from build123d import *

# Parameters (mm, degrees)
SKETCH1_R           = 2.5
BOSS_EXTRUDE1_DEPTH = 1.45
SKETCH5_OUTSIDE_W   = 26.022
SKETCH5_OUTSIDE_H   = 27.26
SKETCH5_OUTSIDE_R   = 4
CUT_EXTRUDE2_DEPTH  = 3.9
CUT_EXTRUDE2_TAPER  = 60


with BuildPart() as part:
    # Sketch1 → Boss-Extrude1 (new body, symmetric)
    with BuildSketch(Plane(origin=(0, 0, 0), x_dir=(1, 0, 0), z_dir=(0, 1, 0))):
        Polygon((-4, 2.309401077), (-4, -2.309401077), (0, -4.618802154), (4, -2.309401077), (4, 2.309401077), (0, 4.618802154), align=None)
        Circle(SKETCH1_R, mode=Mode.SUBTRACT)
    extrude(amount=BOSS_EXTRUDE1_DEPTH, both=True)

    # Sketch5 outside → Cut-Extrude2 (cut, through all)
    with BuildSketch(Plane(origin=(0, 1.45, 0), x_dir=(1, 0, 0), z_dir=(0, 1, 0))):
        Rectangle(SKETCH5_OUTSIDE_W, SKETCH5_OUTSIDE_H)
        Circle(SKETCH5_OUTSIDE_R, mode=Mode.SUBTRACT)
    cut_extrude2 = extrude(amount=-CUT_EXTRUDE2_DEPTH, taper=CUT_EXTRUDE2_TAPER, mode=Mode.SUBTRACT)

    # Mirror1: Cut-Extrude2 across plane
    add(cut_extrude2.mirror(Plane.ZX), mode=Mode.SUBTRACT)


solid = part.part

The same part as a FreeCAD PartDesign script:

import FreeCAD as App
import Part
import Sketcher
Q = App.Units.Quantity


def add_polygon(sketch, points):
    """Adds a closed chain of lines whose ends are joined by coincident constraints."""
    first, n = sketch.GeometryCount, len(points)
    for a, b in zip(points, points[1:] + points[:1]):
        sketch.addGeometry(Part.LineSegment(App.Vector(*a, 0), App.Vector(*b, 0)), False)
    for i in range(n):
        sketch.addConstraint(Sketcher.Constraint("Coincident", first + i, 2, first + (i + 1) % n, 1))

doc = App.newDocument("Part")
body = doc.addObject("PartDesign::Body", "Body")

# Sketch on XZ plane
sketch1 = body.newObject("Sketcher::SketchObject", "Sketch")
sketch1.AttachmentSupport = (doc.getObject("XZ_Plane"), [""])
sketch1.MapMode = "FlatFace"
add_polygon(sketch1, [(-4, -2.3), (-4, 2.3), (0, 4.6), (4, 2.3), (4, -2.3), (0, -4.6)])  # lines 0-5
sketch1.addGeometry(Part.Circle(App.Vector(0, 0, 0), App.Vector(0, 0, 1), 2.5), False)  # 6
sketch1.addConstraint([
    Sketcher.Constraint("Vertical", 0),
    Sketcher.Constraint("Vertical", 3),
    Sketcher.Constraint("Coincident", 6, 3, -1, 1),
    Sketcher.Constraint("Symmetric", 0, 2, 3, 2, -1, 1),
    Sketcher.Constraint("Symmetric", 1, 2, 4, 2, -1, 1),
    Sketcher.Constraint("PointOnObject", 1, 2, -2),
    Sketcher.Constraint("Parallel", 2, 5),
    Sketcher.Constraint("Horizontal", 0, 2, 2, 2),
    Sketcher.Constraint("Diameter", 6, Q("5 mm")),
    Sketcher.Constraint("Angle", 1, Q("30 deg")),
    Sketcher.Constraint("DistanceX", 0, 2, -1, 1, Q("4 mm")),
    Sketcher.Constraint("DistanceY", -1, 1, 0, 2, Q("2.309401 mm")),
])
pad1 = body.newObject("PartDesign::Pad", "Pad")
pad1.Profile = sketch1
pad1.Length = 2.9
pad1.Midplane = True

# Sketch on XZ plane
sketch2 = body.newObject("Sketcher::SketchObject", "Sketch001")
sketch2.AttachmentSupport = (doc.getObject("XZ_Plane"), [""])
sketch2.MapMode = "FlatFace"
sketch2.AttachmentOffset = App.Placement(App.Vector(0, 0, -1.45), App.Rotation())
add_polygon(sketch2, [(-13, -13.6), (-13, 13.6), (13, 13.6), (13, -13.6)])  # lines 0-3
sketch2.addGeometry(Part.Circle(App.Vector(0, 0, 0), App.Vector(0, 0, 1), 4), False)  # 4
sketch2.addConstraint([
    Sketcher.Constraint("Vertical", 0),
    Sketcher.Constraint("Horizontal", 1),
    Sketcher.Constraint("Vertical", 2),
    Sketcher.Constraint("Horizontal", 3),
    Sketcher.Constraint("Coincident", 4, 3, -1, 1),
    Sketcher.Constraint("Symmetric", 0, 2, 2, 2, -1, 1),
    Sketcher.Constraint("Diameter", 4, Q("8 mm")),
    Sketcher.Constraint("DistanceY", 0, 1, 0, 2, Q("27.26 mm")),
    Sketcher.Constraint("DistanceX", 1, 1, 1, 2, Q("26.022 mm")),
])
pocket1 = body.newObject("PartDesign::Pocket", "Pocket")
pocket1.Profile = sketch2
pocket1.Length = 3.9
pocket1.Reversed = True
pocket1.TaperAngle = 60
doc.recompute()

mirrored = body.newObject("PartDesign::Mirrored", "Mirrored")
mirrored.Originals = [pocket1]
mirrored.MirrorPlane = (doc.getObject("XZ_Plane"), [""])
body.Tip = mirrored

doc.recompute()
